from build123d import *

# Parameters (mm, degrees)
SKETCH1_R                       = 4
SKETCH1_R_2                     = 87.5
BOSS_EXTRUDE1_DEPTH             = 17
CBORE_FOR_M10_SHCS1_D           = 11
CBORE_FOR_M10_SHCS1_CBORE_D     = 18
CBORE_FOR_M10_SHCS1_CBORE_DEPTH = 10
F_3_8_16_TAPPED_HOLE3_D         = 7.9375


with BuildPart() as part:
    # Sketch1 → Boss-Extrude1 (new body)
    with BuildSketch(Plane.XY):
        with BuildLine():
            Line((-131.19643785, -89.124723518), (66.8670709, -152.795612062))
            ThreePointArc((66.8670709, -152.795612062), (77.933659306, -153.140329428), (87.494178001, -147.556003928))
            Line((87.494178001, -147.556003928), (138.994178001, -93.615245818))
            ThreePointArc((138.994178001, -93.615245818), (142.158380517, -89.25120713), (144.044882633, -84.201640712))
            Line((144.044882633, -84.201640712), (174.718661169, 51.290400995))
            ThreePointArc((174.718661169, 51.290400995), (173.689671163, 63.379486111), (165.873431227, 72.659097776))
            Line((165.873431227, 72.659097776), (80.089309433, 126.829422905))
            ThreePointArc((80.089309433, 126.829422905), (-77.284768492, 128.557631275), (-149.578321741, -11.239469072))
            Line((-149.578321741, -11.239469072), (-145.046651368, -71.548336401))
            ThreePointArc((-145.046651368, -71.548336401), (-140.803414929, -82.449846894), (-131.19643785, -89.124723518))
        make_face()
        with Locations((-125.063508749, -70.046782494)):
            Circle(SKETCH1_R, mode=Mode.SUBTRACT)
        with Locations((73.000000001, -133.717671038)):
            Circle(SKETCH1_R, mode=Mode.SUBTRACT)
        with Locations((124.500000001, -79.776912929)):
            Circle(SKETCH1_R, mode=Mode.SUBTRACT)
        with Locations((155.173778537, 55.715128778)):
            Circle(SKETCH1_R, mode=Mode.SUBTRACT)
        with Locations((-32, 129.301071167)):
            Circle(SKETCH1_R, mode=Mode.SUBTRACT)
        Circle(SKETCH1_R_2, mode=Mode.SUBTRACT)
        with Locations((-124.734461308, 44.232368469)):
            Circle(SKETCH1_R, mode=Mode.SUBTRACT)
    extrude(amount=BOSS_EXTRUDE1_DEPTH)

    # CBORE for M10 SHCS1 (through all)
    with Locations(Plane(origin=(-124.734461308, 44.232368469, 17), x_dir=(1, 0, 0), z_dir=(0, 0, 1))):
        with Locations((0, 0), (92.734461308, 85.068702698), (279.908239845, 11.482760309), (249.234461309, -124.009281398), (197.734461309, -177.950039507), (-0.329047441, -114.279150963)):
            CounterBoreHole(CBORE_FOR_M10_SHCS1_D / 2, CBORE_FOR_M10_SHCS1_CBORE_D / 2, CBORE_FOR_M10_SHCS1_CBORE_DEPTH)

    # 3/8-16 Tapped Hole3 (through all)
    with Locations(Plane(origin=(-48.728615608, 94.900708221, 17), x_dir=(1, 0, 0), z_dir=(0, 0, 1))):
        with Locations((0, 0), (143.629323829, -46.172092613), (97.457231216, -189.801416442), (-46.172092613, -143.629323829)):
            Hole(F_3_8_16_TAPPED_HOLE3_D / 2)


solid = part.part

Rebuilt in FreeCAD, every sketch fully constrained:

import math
import FreeCAD as App
import Part
import Sketcher
from FreeCAD import Vector

doc = App.newDocument("Part")
body = doc.addObject("PartDesign::Body", "Body")

# Sketch on XY plane
sketch1 = body.newObject("Sketcher::SketchObject", "Sketch")
sketch1.AttachmentSupport = (doc.getObject("XY_Plane"), [""])
sketch1.MapMode = "FlatFace"
sketch1.addGeometry(Part.LineSegment(Vector(-131.196438, -89.124724, 0), Vector(66.867071, -152.795612, 0)), False)
sketch1.addGeometry(Part.ArcOfCircle(Part.Circle(Vector(73, -133.717671, 0), Vector(0, 0, 1), 20.039477), math.radians(-107.820886), math.radians(-43.673946)), False)
sketch1.addGeometry(Part.LineSegment(Vector(87.494178, -147.556004, 0), Vector(138.994178, -93.615246, 0)), False)
sketch1.addGeometry(Part.ArcOfCircle(Part.Circle(Vector(124.5, -79.776913, 0), Vector(0, 0, 1), 20.039477), math.radians(-43.673946), math.radians(-12.756058)), False)
sketch1.addGeometry(Part.LineSegment(Vector(144.044883, -84.201641, 0), Vector(174.718661, 51.290401, 0)), False)
sketch1.addGeometry(Part.ArcOfCircle(Part.Circle(Vector(155.173779, 55.715129, 0), Vector(0, 0, 1), 20.039477), math.radians(-12.756058), math.radians(57.72871)), False)
sketch1.addGeometry(Part.LineSegment(Vector(165.873431, 72.659098, 0), Vector(80.089309, 126.829423, 0)), False)
sketch1.addGeometry(Part.ArcOfCircle(Part.Circle(Vector(0, 0, 0), Vector(0, 0, 1), 150), math.radians(57.72871), math.radians(184.297188)), False)
sketch1.addGeometry(Part.LineSegment(Vector(-149.578322, -11.239469, 0), Vector(-145.046651, -71.548336, 0)), False)
sketch1.addGeometry(Part.ArcOfCircle(Part.Circle(Vector(-125.063509, -70.046782, 0), Vector(0, 0, 1), 20.039477), math.radians(-175.702812), math.radians(-107.820886)), False)
sketch1.addGeometry(Part.Circle(Vector(-125.063509, -70.046782, 0), Vector(0, 0, 1), 4), False)
sketch1.addGeometry(Part.Circle(Vector(73, -133.717671, 0), Vector(0, 0, 1), 4), False)
sketch1.addGeometry(Part.Circle(Vector(124.5, -79.776913, 0), Vector(0, 0, 1), 4), False)
sketch1.addGeometry(Part.Circle(Vector(-124.734461, 44.232368, 0), Vector(0, 0, 1), 4), False)
sketch1.addGeometry(Part.Circle(Vector(0, 0, 0), Vector(0, 0, 1), 87.5), False)
sketch1.addGeometry(Part.Circle(Vector(-32, 129.301071, 0), Vector(0, 0, 1), 4), False)
sketch1.addGeometry(Part.Circle(Vector(155.173779, 55.715129, 0), Vector(0, 0, 1), 4), False)
sketch1.addConstraint(Sketcher.Constraint("Coincident", 0, 2, 1, 1))
sketch1.addConstraint(Sketcher.Constraint("Coincident", 1, 2, 2, 1))
sketch1.addConstraint(Sketcher.Constraint("Coincident", 2, 2, 3, 1))
sketch1.addConstraint(Sketcher.Constraint("Coincident", 3, 2, 4, 1))
sketch1.addConstraint(Sketcher.Constraint("Coincident", 4, 2, 5, 1))
sketch1.addConstraint(Sketcher.Constraint("Coincident", 5, 2, 6, 1))
sketch1.addConstraint(Sketcher.Constraint("Coincident", 6, 2, 7, 1))
sketch1.addConstraint(Sketcher.Constraint("Coincident", 7, 2, 8, 1))
sketch1.addConstraint(Sketcher.Constraint("Coincident", 8, 2, 9, 1))
sketch1.addConstraint(Sketcher.Constraint("Coincident", 9, 2, 0, 1))
sketch1.addConstraint(Sketcher.Constraint("Coincident", 7, 3, -1, 1))
sketch1.addConstraint(Sketcher.Constraint("Coincident", 14, 3, -1, 1))
sketch1.addConstraint(Sketcher.Constraint("Coincident", 10, 3, 9, 3))
sketch1.addConstraint(Sketcher.Constraint("Coincident", 11, 3, 1, 3))
sketch1.addConstraint(Sketcher.Constraint("Coincident", 12, 3, 3, 3))
sketch1.addConstraint(Sketcher.Constraint("Coincident", 16, 3, 5, 3))
sketch1.addConstraint(Sketcher.Constraint("Diameter", 10, 8.0))
sketch1.addConstraint(Sketcher.Constraint("Diameter", 11, 8.0))
sketch1.addConstraint(Sketcher.Constraint("Diameter", 12, 8.0))
sketch1.addConstraint(Sketcher.Constraint("Diameter", 13, 8.0))
sketch1.addConstraint(Sketcher.Constraint("Diameter", 14, 175.0))
sketch1.addConstraint(Sketcher.Constraint("Diameter", 15, 8.0))
sketch1.addConstraint(Sketcher.Constraint("Diameter", 16, 8.0))
sketch1.addConstraint(Sketcher.Constraint("Radius", 7, 150.0))
sketch1.addConstraint(Sketcher.Constraint("DistanceX", -1, 1, 1, 3, 73.0))
sketch1.addConstraint(Sketcher.Constraint("DistanceX", 15, 3, -1, 1, 32.0))
sketch1.addConstraint(Sketcher.Constraint("DistanceX", -1, 1, 3, 3, 124.5))
sketch1.addConstraint(Sketcher.Constraint("DistanceX", 1, 2, 2, 2, 51.5))
sketch1.addConstraint(Sketcher.Constraint("Radius", 1, 20.039477))
sketch1.addConstraint(Sketcher.Constraint("Radius", 3, 20.039477))
sketch1.addConstraint(Sketcher.Constraint("Radius", 5, 20.039477))
sketch1.addConstraint(Sketcher.Constraint("Radius", 9, 20.039477))
sketch1.addConstraint(Sketcher.Constraint("DistanceY", -1, 1, 4, 2, 51.290401))
sketch1.addConstraint(Sketcher.Constraint("DistanceY", 1, 3, 5, 3, 189.4328))
sketch1.addConstraint(Sketcher.Constraint("DistanceY", 0, 2, 12, 3, 73.018699))
sketch1.addConstraint(Sketcher.Constraint("DistanceY", 1, 3, -1, 1, 133.717671))
sketch1.addConstraint(Sketcher.Constraint("DistanceX", -1, 1, 5, 3, 155.173779))
sketch1.addConstraint(Sketcher.Constraint("DistanceX", 9, 3, -1, 1, 125.063509))
sketch1.addConstraint(Sketcher.Constraint("DistanceX", 13, 3, -1, 1, 124.734461))
sketch1.addConstraint(Sketcher.Constraint("DistanceY", -1, 1, 13, 3, 44.232368))
sketch1.addConstraint(Sketcher.Constraint("DistanceY", -1, 1, 15, 3, 129.301071))
sketch1.addConstraint(Sketcher.Constraint("DistanceX", -1, 1, 0, 2, 66.867071))
sketch1.addConstraint(Sketcher.Constraint("DistanceX", -1, 1, 1, 2, 87.494178))
sketch1.addConstraint(Sketcher.Constraint("DistanceY", 3, 2, -1, 1, 84.201641))
sketch1.addConstraint(Sketcher.Constraint("DistanceX", -1, 1, 5, 2, 165.873431))
sketch1.addConstraint(Sketcher.Constraint("DistanceX", -1, 1, 6, 2, 80.089309))
sketch1.addConstraint(Sketcher.Constraint("DistanceX", 7, 2, -1, 1, 149.578322))
sketch1.addConstraint(Sketcher.Constraint("DistanceX", 8, 2, -1, 1, 145.046651))
sketch1.addConstraint(Sketcher.Constraint("DistanceY", 1, 3, 9, 3, 63.670889))
sketch1.addConstraint(Sketcher.Constraint("DistanceX", 9, 2, 10, 3, 6.132929))
pad1 = body.newObject("PartDesign::Pad", "Pad")
pad1.Profile = sketch1
pad1.Length = 17

# Sketch on XY plane
sketch2 = body.newObject("Sketcher::SketchObject", "Sketch001")
sketch2.AttachmentSupport = (doc.getObject("XY_Plane"), [""])
sketch2.MapMode = "FlatFace"
sketch2.AttachmentOffset = App.Placement(Vector(0, 0, 17), App.Rotation())
sketch2.addGeometry(Part.Circle(Vector(-124.734461, 44.232368, 0), Vector(0, 0, 1), 5.5), False)
sketch2.addGeometry(Part.Circle(Vector(-32, 129.301071, 0), Vector(0, 0, 1), 5.5), False)
sketch2.addGeometry(Part.Circle(Vector(155.173779, 55.715129, 0), Vector(0, 0, 1), 5.5), False)
sketch2.addGeometry(Part.Circle(Vector(124.5, -79.776913, 0), Vector(0, 0, 1), 5.5), False)
sketch2.addGeometry(Part.Circle(Vector(73, -133.717671, 0), Vector(0, 0, 1), 5.5), False)
sketch2.addGeometry(Part.Circle(Vector(-125.063509, -70.046782, 0), Vector(0, 0, 1), 5.5), False)
sketch2.addConstraint(Sketcher.Constraint("Equal", 0, 1))
sketch2.addConstraint(Sketcher.Constraint("Equal", 1, 2))
sketch2.addConstraint(Sketcher.Constraint("Equal", 2, 3))
sketch2.addConstraint(Sketcher.Constraint("Equal", 3, 4))
sketch2.addConstraint(Sketcher.Constraint("Equal", 4, 5))
sketch2.addConstraint(Sketcher.Constraint("Diameter", 0, 11.0))
sketch2.addConstraint(Sketcher.Constraint("DistanceX", 1, 3, -1, 1, 32.0))
sketch2.addConstraint(Sketcher.Constraint("DistanceX", -1, 1, 4, 3, 73.0))
sketch2.addConstraint(Sketcher.Constraint("DistanceX", -1, 1, 3, 3, 124.5))
sketch2.addConstraint(Sketcher.Constraint("DistanceY", 4, 3, 2, 3, 189.4328))
sketch2.addConstraint(Sketcher.Constraint("DistanceX", 0, 3, -1, 1, 124.734461))
sketch2.addConstraint(Sketcher.Constraint("DistanceY", -1, 1, 0, 3, 44.232368))
sketch2.addConstraint(Sketcher.Constraint("DistanceY", -1, 1, 1, 3, 129.301071))
sketch2.addConstraint(Sketcher.Constraint("DistanceX", -1, 1, 2, 3, 155.173779))
sketch2.addConstraint(Sketcher.Constraint("DistanceY", -1, 1, 2, 3, 55.715129))
sketch2.addConstraint(Sketcher.Constraint("DistanceX", 5, 3, -1, 1, 125.063509))
sketch2.addConstraint(Sketcher.Constraint("DistanceY", 3, 3, 2, 3, 135.492042))
sketch2.addConstraint(Sketcher.Constraint("DistanceY", 5, 3, 0, 3, 114.279151))
doc.recompute()
hole = body.newObject("PartDesign::Hole", "Hole")
hole.Profile = sketch2
hole.ThreadType = "None"
hole.Diameter = 11
hole.DepthType = "ThroughAll"
hole.HoleCutType = "Counterbore"
hole.HoleCutDiameter = 18
hole.HoleCutDepth = 10

# Sketch on XY plane
sketch3 = body.newObject("Sketcher::SketchObject", "Sketch002")
sketch3.AttachmentSupport = (doc.getObject("XY_Plane"), [""])
sketch3.MapMode = "FlatFace"
sketch3.AttachmentOffset = App.Placement(Vector(0, 0, 17), App.Rotation())
sketch3.addGeometry(Part.Circle(Vector(-48.728616, 94.900708, 0), Vector(0, 0, 1), 3.96875), False)
sketch3.addGeometry(Part.Circle(Vector(94.900708, 48.728616, 0), Vector(0, 0, 1), 3.96875), False)
sketch3.addGeometry(Part.Circle(Vector(48.728616, -94.900708, 0), Vector(0, 0, 1), 3.96875), False)
sketch3.addGeometry(Part.Circle(Vector(-94.900708, -48.728616, 0), Vector(0, 0, 1), 3.96875), False)
sketch3.addConstraint(Sketcher.Constraint("Equal", 0, 1))
sketch3.addConstraint(Sketcher.Constraint("Equal", 1, 2))
sketch3.addConstraint(Sketcher.Constraint("Equal", 2, 3))
sketch3.addConstraint(Sketcher.Constraint("Symmetric", 0, 3, 2, 3, -1, 1))
sketch3.addConstraint(Sketcher.Constraint("Symmetric", 1, 3, 3, 3, -1, 1))
sketch3.addConstraint(Sketcher.Constraint("Diameter", 0, 7.9375))
sketch3.addConstraint(Sketcher.Constraint("DistanceY", -1, 1, 0, 3, 94.900708))
sketch3.addConstraint(Sketcher.Constraint("DistanceX", -1, 1, 1, 3, 94.900708))
sketch3.addConstraint(Sketcher.Constraint("DistanceX", 0, 3, 2, 3, 97.457231))
sketch3.addConstraint(Sketcher.Constraint("DistanceY", 3, 3, 1, 3, 97.457231))
doc.recompute()
hole2 = body.newObject("PartDesign::Hole", "Hole001")
hole2.Profile = sketch3
hole2.ThreadType = "None"
hole2.Diameter = 7.9375
hole2.DepthType = "ThroughAll"

doc.recompute()
